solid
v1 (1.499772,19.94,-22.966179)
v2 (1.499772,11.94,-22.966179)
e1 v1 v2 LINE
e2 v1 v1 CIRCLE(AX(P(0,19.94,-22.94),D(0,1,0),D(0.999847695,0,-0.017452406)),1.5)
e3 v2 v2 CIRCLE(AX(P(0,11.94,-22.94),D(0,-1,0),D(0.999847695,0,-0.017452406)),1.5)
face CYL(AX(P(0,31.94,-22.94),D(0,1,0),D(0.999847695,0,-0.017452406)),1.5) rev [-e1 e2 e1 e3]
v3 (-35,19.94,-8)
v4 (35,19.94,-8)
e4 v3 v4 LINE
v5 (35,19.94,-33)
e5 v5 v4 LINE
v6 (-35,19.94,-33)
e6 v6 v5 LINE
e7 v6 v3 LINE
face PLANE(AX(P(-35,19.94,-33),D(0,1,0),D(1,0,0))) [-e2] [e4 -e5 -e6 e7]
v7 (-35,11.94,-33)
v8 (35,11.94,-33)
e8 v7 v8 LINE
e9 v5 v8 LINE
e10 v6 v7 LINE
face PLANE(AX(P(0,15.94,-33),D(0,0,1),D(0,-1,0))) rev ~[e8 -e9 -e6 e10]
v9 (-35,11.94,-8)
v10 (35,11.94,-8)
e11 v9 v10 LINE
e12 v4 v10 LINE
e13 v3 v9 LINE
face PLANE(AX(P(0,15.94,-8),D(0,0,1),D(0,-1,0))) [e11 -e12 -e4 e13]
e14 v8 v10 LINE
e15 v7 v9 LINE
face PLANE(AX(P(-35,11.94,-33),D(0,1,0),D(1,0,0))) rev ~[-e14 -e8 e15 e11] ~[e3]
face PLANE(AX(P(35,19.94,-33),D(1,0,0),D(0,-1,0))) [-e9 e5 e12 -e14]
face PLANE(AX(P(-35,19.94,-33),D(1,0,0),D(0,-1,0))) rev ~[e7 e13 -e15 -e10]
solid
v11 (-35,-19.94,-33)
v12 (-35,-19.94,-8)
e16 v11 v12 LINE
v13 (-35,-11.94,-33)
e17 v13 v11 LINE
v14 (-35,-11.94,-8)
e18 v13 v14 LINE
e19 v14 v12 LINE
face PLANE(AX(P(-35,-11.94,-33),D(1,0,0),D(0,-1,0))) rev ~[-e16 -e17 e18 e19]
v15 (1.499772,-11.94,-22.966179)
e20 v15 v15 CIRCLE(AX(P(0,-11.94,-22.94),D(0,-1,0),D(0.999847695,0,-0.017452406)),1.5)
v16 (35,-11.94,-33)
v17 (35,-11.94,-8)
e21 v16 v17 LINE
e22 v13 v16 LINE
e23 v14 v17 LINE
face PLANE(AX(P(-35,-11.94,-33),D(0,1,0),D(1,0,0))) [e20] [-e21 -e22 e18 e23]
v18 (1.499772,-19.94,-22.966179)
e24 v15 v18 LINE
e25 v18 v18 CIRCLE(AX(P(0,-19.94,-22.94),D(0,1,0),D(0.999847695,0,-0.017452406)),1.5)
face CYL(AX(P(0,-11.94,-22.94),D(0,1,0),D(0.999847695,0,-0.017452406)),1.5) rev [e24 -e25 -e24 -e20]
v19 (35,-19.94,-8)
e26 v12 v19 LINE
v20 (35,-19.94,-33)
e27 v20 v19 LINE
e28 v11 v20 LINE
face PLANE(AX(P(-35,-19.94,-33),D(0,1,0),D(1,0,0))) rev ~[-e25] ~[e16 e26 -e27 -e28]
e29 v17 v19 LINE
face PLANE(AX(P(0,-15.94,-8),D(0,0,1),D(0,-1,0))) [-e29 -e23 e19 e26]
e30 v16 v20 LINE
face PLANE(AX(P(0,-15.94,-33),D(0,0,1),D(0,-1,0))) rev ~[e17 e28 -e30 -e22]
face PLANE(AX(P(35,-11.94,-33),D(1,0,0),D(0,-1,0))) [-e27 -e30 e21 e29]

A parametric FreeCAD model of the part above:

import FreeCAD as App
import Part
import Sketcher

V = App.Vector


def add_polygon(sketch, points):
    """Adds a closed chain of lines whose ends are joined by coincident constraints."""
    first, n = sketch.GeometryCount, len(points)
    for a, b in zip(points, points[1:] + points[:1]):
        sketch.addGeometry(Part.LineSegment(App.Vector(*a, 0), App.Vector(*b, 0)), False)
    for i in range(n):
        sketch.addConstraint(Sketcher.Constraint("Coincident", first + i, 2, first + (i + 1) % n, 1))

doc = App.newDocument("Part")
body = doc.addObject("PartDesign::Body", "Body")

# Sketch on XZ plane
sketch1 = body.newObject("Sketcher::SketchObject", "Sketch")
sketch1.AttachmentSupport = (doc.getObject("XZ_Plane"), [""])
sketch1.MapMode = "FlatFace"
sketch1.addGeometry(Part.Circle(V(7.94, 0, 0), V(0, 0, 1), 1.5), False)
sketch1.addConstraint(Sketcher.Constraint("PointOnObject", 0, 3, -1))
sketch1.addConstraint(Sketcher.Constraint("Diameter", 0, 3.0))
sketch1.addConstraint(Sketcher.Constraint("DistanceX", -1, 1, 0, 3, 7.94))
revolution = body.newObject("PartDesign::Revolution", "Revolution")
revolution.Profile = sketch1
revolution.ReferenceAxis = (sketch1, ["V_Axis"])
revolution.Angle = 90
body2 = doc.addObject("PartDesign::Body", "Body001")
doc.recompute()

body.Placement = App.Placement(V(0, 0, 0), App.Rotation(V(0, 1, 0), 90))
boolean = body2.newObject("PartDesign::Boolean", "Boolean")
boolean.Type = "Fuse"
boolean.addObjects([body])
body3 = doc.addObject("PartDesign::Body", "Body002")
doc.recompute()

body2.Placement = App.Placement(V(0, 11.94, -15), App.Rotation(V(0, 0, 1), 180))
boolean2 = body3.newObject("PartDesign::Boolean", "Boolean001")
boolean2.Type = "Fuse"
boolean2.addObjects([body2])
body4 = doc.addObject("PartDesign::Body", "Body003")

# Sketch on XZ plane
sketch2 = body4.newObject("Sketcher::SketchObject", "Sketch001")
sketch2.AttachmentSupport = (doc.getObject("XZ_Plane003"), [""])
sketch2.MapMode = "FlatFace"
sketch2.addGeometry(Part.Circle(V(7.94, 0, 0), V(0, 0, 1), 1.5), False)
sketch2.addConstraint(Sketcher.Constraint("PointOnObject", 0, 3, -1))
sketch2.addConstraint(Sketcher.Constraint("Diameter", 0, 3.0))
sketch2.addConstraint(Sketcher.Constraint("DistanceX", -1, 1, 0, 3, 7.94))
revolution2 = body4.newObject("PartDesign::Revolution", "Revolution001")
revolution2.Profile = sketch2
revolution2.ReferenceAxis = (sketch2, ["V_Axis"])
revolution2.Angle = 90
body5 = doc.addObject("PartDesign::Body", "Body004")
doc.recompute()

body4.Placement = App.Placement(V(0, 0, 0), App.Rotation(V(0, 1, 0), 90))
boolean3 = body5.newObject("PartDesign::Boolean", "Boolean002")
boolean3.Type = "Fuse"
boolean3.addObjects([body4])
body6 = doc.addObject("PartDesign::Body", "Body005")
body6.AllowCompound = True
doc.recompute()

body5.Placement = App.Placement(V(0, -11.94, -15), App.Rotation(V(0, 0, 1), 0))
boolean4 = body6.newObject("PartDesign::Boolean", "Boolean003")
boolean4.Type = "Fuse"
boolean4.addObjects([body5])
doc.recompute()

boolean5 = body6.newObject("PartDesign::Boolean", "Boolean004")
boolean5.Type = "Fuse"
boolean5.addObjects([body3])
body7 = doc.addObject("PartDesign::Body", "Body006")

# Sketch on XY plane
sketch3 = body7.newObject("Sketcher::SketchObject", "Sketch002")
sketch3.AttachmentSupport = (doc.getObject("XY_Plane006"), [""])
sketch3.MapMode = "FlatFace"
sketch3.addGeometry(Part.Circle(V(0, 0, 0), V(0, 0, 1), 1.5), False)
sketch3.addConstraint(Sketcher.Constraint("Coincident", 0, 3, -1, 1))
sketch3.addConstraint(Sketcher.Constraint("Diameter", 0, 3.0))
pad1 = body7.newObject("PartDesign::Pad", "Pad")
pad1.Profile = sketch3
pad1.Length = 20
body8 = doc.addObject("PartDesign::Body", "Body007")
doc.recompute()

body7.Placement = App.Placement(V(0, 0, 0), App.Rotation(V(1, 0, 0), 90))
boolean6 = body8.newObject("PartDesign::Boolean", "Boolean005")
boolean6.Type = "Fuse"
boolean6.addObjects([body7])
body9 = doc.addObject("PartDesign::Body", "Body008")
doc.recompute()

body8.Placement = App.Placement(V(0, 0, 0), App.Rotation(V(0, 1, 0), 1))
boolean7 = body9.newObject("PartDesign::Boolean", "Boolean006")
boolean7.Type = "Fuse"
boolean7.addObjects([body8])
body10 = doc.addObject("PartDesign::Body", "Body009")
doc.recompute()

body9.Placement = App.Placement(V(0, 31.94, -22.94), App.Rotation(V(0, 0, 1), 0))
boolean8 = body10.newObject("PartDesign::Boolean", "Boolean007")
boolean8.Type = "Fuse"
boolean8.addObjects([body9])
body11 = doc.addObject("PartDesign::Body", "Body010")

# Sketch on XY plane
sketch4 = body11.newObject("Sketcher::SketchObject", "Sketch003")
sketch4.AttachmentSupport = (doc.getObject("XY_Plane010"), [""])
sketch4.MapMode = "FlatFace"
sketch4.addGeometry(Part.Circle(V(0, 0, 0), V(0, 0, 1), 1.5), False)
sketch4.addConstraint(Sketcher.Constraint("Coincident", 0, 3, -1, 1))
sketch4.addConstraint(Sketcher.Constraint("Diameter", 0, 3.0))
pad2 = body11.newObject("PartDesign::Pad", "Pad001")
pad2.Profile = sketch4
pad2.Length = 20
body12 = doc.addObject("PartDesign::Body", "Body011")
doc.recompute()

body11.Placement = App.Placement(V(0, 0, 0), App.Rotation(V(1, 0, 0), 90))
boolean9 = body12.newObject("PartDesign::Boolean", "Boolean008")
boolean9.Type = "Fuse"
boolean9.addObjects([body11])
body13 = doc.addObject("PartDesign::Body", "Body012")
doc.recompute()

body12.Placement = App.Placement(V(0, 0, 0), App.Rotation(V(0, 1, 0), 1))
boolean10 = body13.newObject("PartDesign::Boolean", "Boolean009")
boolean10.Type = "Fuse"
boolean10.addObjects([body12])
body14 = doc.addObject("PartDesign::Body", "Body013")
body14.AllowCompound = True
doc.recompute()

body13.Placement = App.Placement(V(0, -11.94, -22.94), App.Rotation(V(0, 0, 1), 0))
boolean11 = body14.newObject("PartDesign::Boolean", "Boolean010")
boolean11.Type = "Fuse"
boolean11.addObjects([body13])
doc.recompute()

boolean12 = body14.newObject("PartDesign::Boolean", "Boolean011")
boolean12.Type = "Fuse"
boolean12.addObjects([body10])
doc.recompute()

boolean13 = body14.newObject("PartDesign::Boolean", "Boolean012")
boolean13.Type = "Fuse"
boolean13.addObjects([body6])
body15 = doc.addObject("PartDesign::Body", "Body014")

# Sketch on XY plane
sketch5 = body15.newObject("Sketcher::SketchObject", "Sketch004")
sketch5.AttachmentSupport = (doc.getObject("XY_Plane014"), [""])
sketch5.MapMode = "FlatFace"
sketch5.AttachmentOffset = App.Placement(V(0, 0, 48), App.Rotation())
add_polygon(sketch5, [(-0.35, 2.9), (-0.35, 2.5), (0.35, 2.5), (0.35, 2.9)])  # lines 0-3
sketch5.addConstraint(Sketcher.Constraint("Vertical", 0))
sketch5.addConstraint(Sketcher.Constraint("Horizontal", 1))
sketch5.addConstraint(Sketcher.Constraint("Vertical", 2))
sketch5.addConstraint(Sketcher.Constraint("Horizontal", 3))
sketch5.addConstraint(Sketcher.Constraint("DistanceX", 1, 1, 1, 2, 0.7))
sketch5.addConstraint(Sketcher.Constraint("DistanceY", 0, 2, 0, 1, 0.4))
sketch5.addConstraint(Sketcher.Constraint("DistanceY", -1, 1, 0, 2, 2.5))
sketch5.addConstraint(Sketcher.Constraint("DistanceX", 0, 2, -1, 1, 0.35))
pad3 = body15.newObject("PartDesign::Pad", "Pad002")
pad3.Profile = sketch5
pad3.Length = 10
body16 = doc.addObject("PartDesign::Body", "Body015")

# Sketch on XY plane
sketch6 = body16.newObject("Sketcher::SketchObject", "Sketch005")
sketch6.AttachmentSupport = (doc.getObject("XY_Plane015"), [""])
sketch6.MapMode = "FlatFace"
sketch6.AttachmentOffset = App.Placement(V(0, 0, 48), App.Rotation())
sketch6.addGeometry(Part.Circle(V(0, 3.3, 0), V(0, 0, 1), 0.65), False)
sketch6.addConstraint(Sketcher.Constraint("PointOnObject", 0, 3, -2))
sketch6.addConstraint(Sketcher.Constraint("Diameter", 0, 1.3))
sketch6.addConstraint(Sketcher.Constraint("DistanceY", -1, 1, 0, 3, 3.3))
pad4 = body16.newObject("PartDesign::Pad", "Pad003")
pad4.Profile = sketch6
pad4.Length = 10
doc.recompute()

boolean14 = body16.newObject("PartDesign::Boolean", "Boolean013")
boolean14.Type = "Fuse"
boolean14.addObjects([body15])
body17 = doc.addObject("PartDesign::Body", "Body016")

# Sketch on XY plane
sketch7 = body17.newObject("Sketcher::SketchObject", "Sketch006")
sketch7.AttachmentSupport = (doc.getObject("XY_Plane016"), [""])
sketch7.MapMode = "FlatFace"
sketch7.AttachmentOffset = App.Placement(V(0, 0, -21), App.Rotation())
sketch7.addGeometry(Part.Circle(V(0, 4, 0), V(0, 0, 1), 1.5), False)
sketch7.addConstraint(Sketcher.Constraint("PointOnObject", 0, 3, -2))
sketch7.addConstraint(Sketcher.Constraint("Diameter", 0, 3.0))
sketch7.addConstraint(Sketcher.Constraint("DistanceY", -1, 1, 0, 3, 4.0))
pad5 = body17.newObject("PartDesign::Pad", "Pad004")
pad5.Profile = sketch7
pad5.Length = 79
doc.recompute()

boolean15 = body17.newObject("PartDesign::Boolean", "Boolean014")
boolean15.Type = "Cut"
boolean15.addObjects([body16])
body18 = doc.addObject("PartDesign::Body", "Body017")

# Sketch on XY plane
sketch8 = body18.newObject("Sketcher::SketchObject", "Sketch007")
sketch8.AttachmentSupport = (doc.getObject("XY_Plane017"), [""])
sketch8.MapMode = "FlatFace"
sketch8.AttachmentOffset = App.Placement(V(0, 0, 48), App.Rotation())
add_polygon(sketch8, [(-0.35, -2.5), (-0.35, -2.9), (0.35, -2.9), (0.35, -2.5)])  # lines 0-3
sketch8.addConstraint(Sketcher.Constraint("Vertical", 0))
sketch8.addConstraint(Sketcher.Constraint("Horizontal", 1))
sketch8.addConstraint(Sketcher.Constraint("Vertical", 2))
sketch8.addConstraint(Sketcher.Constraint("Horizontal", 3))
sketch8.addConstraint(Sketcher.Constraint("DistanceX", 1, 1, 1, 2, 0.7))
sketch8.addConstraint(Sketcher.Constraint("DistanceY", 0, 2, 0, 1, 0.4))
sketch8.addConstraint(Sketcher.Constraint("DistanceY", 0, 2, -1, 1, 2.9))
sketch8.addConstraint(Sketcher.Constraint("DistanceX", 0, 2, -1, 1, 0.35))
pad6 = body18.newObject("PartDesign::Pad", "Pad005")
pad6.Profile = sketch8
pad6.Length = 10
body19 = doc.addObject("PartDesign::Body", "Body018")

# Sketch on XY plane
sketch9 = body19.newObject("Sketcher::SketchObject", "Sketch008")
sketch9.AttachmentSupport = (doc.getObject("XY_Plane018"), [""])
sketch9.MapMode = "FlatFace"
sketch9.AttachmentOffset = App.Placement(V(0, 0, 48), App.Rotation())
sketch9.addGeometry(Part.Circle(V(0, -3.3, 0), V(0, 0, 1), 0.65), False)
sketch9.addConstraint(Sketcher.Constraint("PointOnObject", 0, 3, -2))
sketch9.addConstraint(Sketcher.Constraint("Diameter", 0, 1.3))
sketch9.addConstraint(Sketcher.Constraint("DistanceY", 0, 3, -1, 1, 3.3))
pad7 = body19.newObject("PartDesign::Pad", "Pad006")
pad7.Profile = sketch9
pad7.Length = 10
doc.recompute()

boolean16 = body19.newObject("PartDesign::Boolean", "Boolean015")
boolean16.Type = "Fuse"
boolean16.addObjects([body18])
body20 = doc.addObject("PartDesign::Body", "Body019")
body20.AllowCompound = True

# Sketch on XY plane
sketch10 = body20.newObject("Sketcher::SketchObject", "Sketch009")
sketch10.AttachmentSupport = (doc.getObject("XY_Plane019"), [""])
sketch10.MapMode = "FlatFace"
sketch10.AttachmentOffset = App.Placement(V(0, 0, -21), App.Rotation())
sketch10.addGeometry(Part.Circle(V(0, -4, 0), V(0, 0, 1), 1.5), False)
sketch10.addConstraint(Sketcher.Constraint("PointOnObject", 0, 3, -2))
sketch10.addConstraint(Sketcher.Constraint("Diameter", 0, 3.0))
sketch10.addConstraint(Sketcher.Constraint("DistanceY", 0, 3, -1, 1, 4.0))
pad8 = body20.newObject("PartDesign::Pad", "Pad007")
pad8.Profile = sketch10
pad8.Length = 79
doc.recompute()

boolean17 = body20.newObject("PartDesign::Boolean", "Boolean016")
boolean17.Type = "Cut"
boolean17.addObjects([body19])
doc.recompute()

boolean18 = body20.newObject("PartDesign::Boolean", "Boolean017")
boolean18.Type = "Fuse"
boolean18.addObjects([body17])
body21 = doc.addObject("PartDesign::Body", "Body020")
body21.AllowCompound = True
doc.recompute()

body20.Placement = App.Placement(V(0, 0, 6), App.Rotation(V(0, 0, 1), 0))
boolean19 = body21.newObject("PartDesign::Boolean", "Boolean018")
boolean19.Type = "Fuse"
boolean19.addObjects([body20])
doc.recompute()

boolean20 = body21.newObject("PartDesign::Boolean", "Boolean019")
boolean20.Type = "Fuse"
boolean20.addObjects([body14])
body22 = doc.addObject("PartDesign::Body", "Body021")

# Sketch on XY plane
sketch11 = body22.newObject("Sketcher::SketchObject", "Sketch010")
sketch11.AttachmentSupport = (doc.getObject("XY_Plane021"), [""])
sketch11.MapMode = "FlatFace"
add_polygon(sketch11, [(0, 70), (0, 0), (8, 0), (8, 70)])  # lines 0-3
sketch11.addConstraint(Sketcher.Constraint("Vertical", 0))
sketch11.addConstraint(Sketcher.Constraint("Horizontal", 1))
sketch11.addConstraint(Sketcher.Constraint("Vertical", 2))
sketch11.addConstraint(Sketcher.Constraint("Horizontal", 3))
sketch11.addConstraint(Sketcher.Constraint("Coincident", 0, 2, -1, 1))
sketch11.addConstraint(Sketcher.Constraint("DistanceX", 1, 1, 1, 2, 8.0))
sketch11.addConstraint(Sketcher.Constraint("DistanceY", 0, 2, 0, 1, 70.0))
pad9 = body22.newObject("PartDesign::Pad", "Pad008")
pad9.Profile = sketch11
pad9.Length = 25
body23 = doc.addObject("PartDesign::Body", "Body022")
doc.recompute()

body22.Placement = App.Placement(V(-35, 19.94, -33), App.Rotation(V(0, 0, 1), 270))
boolean21 = body23.newObject("PartDesign::Boolean", "Boolean020")
boolean21.Type = "Fuse"
boolean21.addObjects([body22])
body24 = doc.addObject("PartDesign::Body", "Body023")

# Sketch on XY plane
sketch12 = body24.newObject("Sketcher::SketchObject", "Sketch011")
sketch12.AttachmentSupport = (doc.getObject("XY_Plane023"), [""])
sketch12.MapMode = "FlatFace"
add_polygon(sketch12, [(0, 70), (0, 0), (8, 0), (8, 70)])  # lines 0-3
sketch12.addConstraint(Sketcher.Constraint("Vertical", 0))
sketch12.addConstraint(Sketcher.Constraint("Horizontal", 1))
sketch12.addConstraint(Sketcher.Constraint("Vertical", 2))
sketch12.addConstraint(Sketcher.Constraint("Horizontal", 3))
sketch12.addConstraint(Sketcher.Constraint("Coincident", 0, 2, -1, 1))
sketch12.addConstraint(Sketcher.Constraint("DistanceX", 1, 1, 1, 2, 8.0))
sketch12.addConstraint(Sketcher.Constraint("DistanceY", 0, 2, 0, 1, 70.0))
pad10 = body24.newObject("PartDesign::Pad", "Pad009")
pad10.Profile = sketch12
pad10.Length = 25
body25 = doc.addObject("PartDesign::Body", "Body024")
body25.AllowCompound = True
doc.recompute()

body24.Placement = App.Placement(V(-35, -11.94, -33), App.Rotation(V(0, 0, 1), 270))
boolean22 = body25.newObject("PartDesign::Boolean", "Boolean021")
boolean22.Type = "Fuse"
boolean22.addObjects([body24])
doc.recompute()

boolean23 = body25.newObject("PartDesign::Boolean", "Boolean022")
boolean23.Type = "Fuse"
boolean23.addObjects([body23])
doc.recompute()

boolean24 = body25.newObject("PartDesign::Boolean", "Boolean023")
boolean24.Type = "Cut"
boolean24.addObjects([body21])

doc.recompute()
